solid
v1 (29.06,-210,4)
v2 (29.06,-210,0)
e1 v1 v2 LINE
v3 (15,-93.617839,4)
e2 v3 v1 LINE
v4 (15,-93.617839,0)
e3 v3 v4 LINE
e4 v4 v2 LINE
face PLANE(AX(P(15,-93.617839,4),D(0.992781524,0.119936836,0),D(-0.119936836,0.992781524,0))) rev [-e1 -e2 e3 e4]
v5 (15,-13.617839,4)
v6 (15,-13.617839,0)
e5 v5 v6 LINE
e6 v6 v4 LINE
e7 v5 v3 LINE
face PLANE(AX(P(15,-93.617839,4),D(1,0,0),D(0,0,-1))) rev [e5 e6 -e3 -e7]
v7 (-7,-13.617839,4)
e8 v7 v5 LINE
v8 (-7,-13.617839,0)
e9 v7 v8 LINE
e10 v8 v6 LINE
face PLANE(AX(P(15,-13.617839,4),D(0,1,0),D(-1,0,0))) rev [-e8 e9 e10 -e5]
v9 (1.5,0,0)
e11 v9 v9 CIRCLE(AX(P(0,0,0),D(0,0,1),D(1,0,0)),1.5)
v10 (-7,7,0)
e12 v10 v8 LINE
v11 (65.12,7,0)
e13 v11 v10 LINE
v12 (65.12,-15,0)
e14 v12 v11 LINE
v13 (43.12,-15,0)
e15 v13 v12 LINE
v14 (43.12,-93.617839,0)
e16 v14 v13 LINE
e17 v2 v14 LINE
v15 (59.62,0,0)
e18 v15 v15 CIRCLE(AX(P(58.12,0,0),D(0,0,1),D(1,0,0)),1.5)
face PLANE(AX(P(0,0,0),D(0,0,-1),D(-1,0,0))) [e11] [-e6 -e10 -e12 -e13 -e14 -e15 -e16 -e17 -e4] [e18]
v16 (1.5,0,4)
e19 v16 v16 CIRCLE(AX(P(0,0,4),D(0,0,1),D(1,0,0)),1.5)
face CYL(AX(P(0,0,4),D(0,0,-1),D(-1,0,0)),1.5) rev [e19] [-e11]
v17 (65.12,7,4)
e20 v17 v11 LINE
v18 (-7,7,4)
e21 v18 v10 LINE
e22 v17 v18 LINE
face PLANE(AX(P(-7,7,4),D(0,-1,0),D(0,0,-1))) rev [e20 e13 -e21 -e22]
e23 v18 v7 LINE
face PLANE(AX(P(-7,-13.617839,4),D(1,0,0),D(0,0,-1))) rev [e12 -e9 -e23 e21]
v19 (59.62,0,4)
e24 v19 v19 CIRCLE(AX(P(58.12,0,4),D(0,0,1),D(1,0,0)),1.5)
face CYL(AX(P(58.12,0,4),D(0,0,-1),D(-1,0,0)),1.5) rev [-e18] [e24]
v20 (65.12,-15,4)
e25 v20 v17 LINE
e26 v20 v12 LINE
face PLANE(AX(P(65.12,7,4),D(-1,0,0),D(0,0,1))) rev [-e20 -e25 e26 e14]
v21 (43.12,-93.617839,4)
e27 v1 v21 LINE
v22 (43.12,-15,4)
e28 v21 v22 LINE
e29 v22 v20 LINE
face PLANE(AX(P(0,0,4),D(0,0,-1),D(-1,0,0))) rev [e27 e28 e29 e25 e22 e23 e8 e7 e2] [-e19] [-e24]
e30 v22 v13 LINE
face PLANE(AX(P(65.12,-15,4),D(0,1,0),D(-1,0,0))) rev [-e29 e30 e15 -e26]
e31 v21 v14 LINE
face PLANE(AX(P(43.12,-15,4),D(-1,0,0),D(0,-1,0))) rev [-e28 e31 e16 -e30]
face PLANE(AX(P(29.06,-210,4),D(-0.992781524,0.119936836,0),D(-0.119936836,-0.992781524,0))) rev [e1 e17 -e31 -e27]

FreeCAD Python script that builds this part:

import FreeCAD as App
import Part
import Sketcher
from FreeCAD import Vector


def add_polygon(sketch, points):
    """Adds a closed chain of lines whose ends are joined by coincident constraints."""
    first, n = sketch.GeometryCount, len(points)
    for a, b in zip(points, points[1:] + points[:1]):
        sketch.addGeometry(Part.LineSegment(App.Vector(*a, 0), App.Vector(*b, 0)), False)
    for i in range(n):
        sketch.addConstraint(Sketcher.Constraint("Coincident", first + i, 2, first + (i + 1) % n, 1))

doc = App.newDocument("Part")
body = doc.addObject("PartDesign::Body", "Body")

# Sketch on XY plane
sketch1 = body.newObject("Sketcher::SketchObject", "Sketch")
sketch1.AttachmentSupport = (doc.getObject("XY_Plane"), [""])
sketch1.MapMode = "FlatFace"
add_polygon(sketch1, [(65.1, 7), (-7, 7), (-7, -13.6), (15, -13.6), (15, -93.6), (29.1, -210), (43.1, -93.6), (43.1, -15), (65.1, -15)])  # lines 0-8
sketch1.addGeometry(Part.Circle(Vector(58.1, 0, 0), Vector(0, 0, 1), 1.5), False)  # 9
sketch1.addGeometry(Part.Circle(Vector(0, 0, 0), Vector(0, 0, 1), 1.5), False)  # 10
sketch1.addConstraint([
    Sketcher.Constraint("Horizontal", 0),
    Sketcher.Constraint("Vertical", 1),
    Sketcher.Constraint("Horizontal", 2),
    Sketcher.Constraint("Vertical", 3),
    Sketcher.Constraint("Vertical", 6),
    Sketcher.Constraint("Horizontal", 7),
    Sketcher.Constraint("Vertical", 8),
    Sketcher.Constraint("Coincident", 10, 3, -1, 1),
    Sketcher.Constraint("Equal", 9, 10),
    Sketcher.Constraint("PointOnObject", 9, 3, -1),
    Sketcher.Constraint("Horizontal", 3, 2, 5, 2),
    Sketcher.Constraint("Equal", 2, 7),
    Sketcher.Constraint("Equal", 7, 8),
    Sketcher.Constraint("Equal", 4, 5),
    Sketcher.Constraint("Diameter", 9, 3.0),
    Sketcher.Constraint("DistanceX", 2, 1, 2, 2, 22.0),
    Sketcher.Constraint("DistanceY", 3, 2, 3, 1, 80.0),
    Sketcher.Constraint("DistanceX", 0, 2, -1, 1, 7.0),
    Sketcher.Constraint("DistanceY", -1, 1, 0, 2, 7.0),
    Sketcher.Constraint("DistanceY", 4, 2, -1, 1, 210.0),
    Sketcher.Constraint("DistanceX", 5, 2, 9, 3, 15.0),
    Sketcher.Constraint("DistanceX", 0, 2, 0, 1, 72.12),
    Sketcher.Constraint("DistanceY", 1, 2, 1, 1, 20.617839),
])
pad1 = body.newObject("PartDesign::Pad", "Pad")
pad1.Profile = sketch1
pad1.Length = 4

doc.recompute()
